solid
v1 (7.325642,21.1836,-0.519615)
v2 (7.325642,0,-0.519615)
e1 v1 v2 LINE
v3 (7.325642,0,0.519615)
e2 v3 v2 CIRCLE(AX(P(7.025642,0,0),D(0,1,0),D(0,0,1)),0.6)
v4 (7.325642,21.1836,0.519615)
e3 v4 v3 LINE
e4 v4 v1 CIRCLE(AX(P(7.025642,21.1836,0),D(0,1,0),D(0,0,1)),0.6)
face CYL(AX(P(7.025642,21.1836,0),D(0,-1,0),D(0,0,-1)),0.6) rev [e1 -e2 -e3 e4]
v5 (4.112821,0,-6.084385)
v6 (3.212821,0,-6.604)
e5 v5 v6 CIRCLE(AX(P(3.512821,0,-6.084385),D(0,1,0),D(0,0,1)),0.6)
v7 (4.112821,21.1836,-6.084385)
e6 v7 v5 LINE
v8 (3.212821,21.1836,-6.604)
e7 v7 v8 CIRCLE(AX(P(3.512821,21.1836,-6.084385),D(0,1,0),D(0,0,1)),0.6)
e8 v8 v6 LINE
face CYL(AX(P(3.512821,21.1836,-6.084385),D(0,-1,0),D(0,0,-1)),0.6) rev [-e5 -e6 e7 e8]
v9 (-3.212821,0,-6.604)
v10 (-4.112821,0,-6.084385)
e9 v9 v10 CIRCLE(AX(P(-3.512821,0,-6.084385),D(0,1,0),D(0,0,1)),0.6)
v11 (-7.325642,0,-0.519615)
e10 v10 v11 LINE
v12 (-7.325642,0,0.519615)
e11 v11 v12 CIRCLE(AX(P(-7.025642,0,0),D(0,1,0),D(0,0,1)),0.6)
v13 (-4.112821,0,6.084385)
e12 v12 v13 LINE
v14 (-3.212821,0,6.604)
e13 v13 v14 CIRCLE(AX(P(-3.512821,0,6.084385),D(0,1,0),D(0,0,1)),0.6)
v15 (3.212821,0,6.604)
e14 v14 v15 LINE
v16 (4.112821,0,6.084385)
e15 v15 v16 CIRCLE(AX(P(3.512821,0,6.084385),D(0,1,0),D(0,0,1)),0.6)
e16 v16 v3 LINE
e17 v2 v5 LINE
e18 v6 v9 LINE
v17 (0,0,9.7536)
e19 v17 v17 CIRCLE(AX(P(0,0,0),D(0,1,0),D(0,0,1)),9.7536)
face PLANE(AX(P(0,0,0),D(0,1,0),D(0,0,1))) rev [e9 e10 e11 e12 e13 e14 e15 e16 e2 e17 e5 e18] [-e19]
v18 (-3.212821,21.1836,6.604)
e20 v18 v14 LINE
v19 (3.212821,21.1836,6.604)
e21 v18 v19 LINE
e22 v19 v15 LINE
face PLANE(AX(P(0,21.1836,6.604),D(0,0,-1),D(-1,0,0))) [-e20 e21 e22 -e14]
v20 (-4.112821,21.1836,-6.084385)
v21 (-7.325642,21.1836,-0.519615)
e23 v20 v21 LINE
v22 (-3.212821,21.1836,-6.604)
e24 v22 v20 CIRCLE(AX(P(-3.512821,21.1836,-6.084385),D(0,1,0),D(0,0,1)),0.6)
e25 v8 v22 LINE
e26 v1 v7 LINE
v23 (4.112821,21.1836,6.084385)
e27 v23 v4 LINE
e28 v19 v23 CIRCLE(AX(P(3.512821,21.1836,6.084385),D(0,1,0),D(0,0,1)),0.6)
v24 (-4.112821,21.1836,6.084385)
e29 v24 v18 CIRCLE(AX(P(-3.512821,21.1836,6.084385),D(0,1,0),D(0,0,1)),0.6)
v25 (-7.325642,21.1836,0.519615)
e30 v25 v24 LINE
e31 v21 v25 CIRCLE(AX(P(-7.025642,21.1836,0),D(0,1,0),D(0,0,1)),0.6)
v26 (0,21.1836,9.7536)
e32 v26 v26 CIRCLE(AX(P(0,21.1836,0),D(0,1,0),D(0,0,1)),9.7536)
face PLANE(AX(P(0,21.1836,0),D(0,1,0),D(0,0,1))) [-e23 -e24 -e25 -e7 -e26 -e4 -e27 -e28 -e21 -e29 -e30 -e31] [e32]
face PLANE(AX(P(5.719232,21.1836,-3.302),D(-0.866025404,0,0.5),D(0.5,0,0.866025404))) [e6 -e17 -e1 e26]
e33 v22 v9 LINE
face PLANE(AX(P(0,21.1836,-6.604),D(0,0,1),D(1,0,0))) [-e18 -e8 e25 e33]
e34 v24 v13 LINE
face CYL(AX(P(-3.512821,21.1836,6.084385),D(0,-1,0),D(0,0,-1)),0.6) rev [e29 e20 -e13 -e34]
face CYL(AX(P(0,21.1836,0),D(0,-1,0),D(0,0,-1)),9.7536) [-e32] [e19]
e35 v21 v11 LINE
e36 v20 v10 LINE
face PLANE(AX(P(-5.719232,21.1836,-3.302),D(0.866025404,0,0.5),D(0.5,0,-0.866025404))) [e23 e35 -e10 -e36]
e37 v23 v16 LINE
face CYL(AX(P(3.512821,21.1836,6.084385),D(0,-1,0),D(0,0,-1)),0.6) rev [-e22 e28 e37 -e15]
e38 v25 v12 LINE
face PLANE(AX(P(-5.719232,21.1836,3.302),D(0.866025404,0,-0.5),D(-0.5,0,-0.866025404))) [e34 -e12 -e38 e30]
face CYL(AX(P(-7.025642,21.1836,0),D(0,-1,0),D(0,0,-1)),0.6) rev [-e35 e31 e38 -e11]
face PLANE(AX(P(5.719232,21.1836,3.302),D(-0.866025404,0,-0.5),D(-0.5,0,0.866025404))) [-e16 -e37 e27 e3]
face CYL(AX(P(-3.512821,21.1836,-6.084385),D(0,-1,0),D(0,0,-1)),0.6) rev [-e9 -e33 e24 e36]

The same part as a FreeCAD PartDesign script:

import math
import FreeCAD as App
import Part
import Sketcher
from FreeCAD import Vector
Q = App.Units.Quantity

doc = App.newDocument("Part")
body = doc.addObject("PartDesign::Body", "Body")

sketch1 = body.newObject("Sketcher::SketchObject", "Sketch")
sketch1.AttachmentSupport = (doc.getObject("XZ_Plane"), [""])
sketch1.MapMode = "FlatFace"
sketch1.addGeometry(Part.Circle(Vector(0, 0, 0), Vector(0, 0, 1), 9.8), False)
sketch1.addGeometry(Part.ArcOfCircle(Part.Circle(Vector(3.5, -6.1, 0), Vector(0, 0, 1), 0.6), math.radians(-120), math.radians(-60)), False)
sketch1.addGeometry(Part.ArcOfCircle(Part.Circle(Vector(3.5, -6.1, 0), Vector(0, 0, 1), 0.6), math.radians(-60), math.radians(0)), False)
sketch1.addGeometry(Part.LineSegment(Vector(4.1, -6.1, 0), Vector(7.3, -0.5, 0)), False)
sketch1.addGeometry(Part.ArcOfCircle(Part.Circle(Vector(7, 0, 0), Vector(0, 0, 1), 0.6), math.radians(-60), math.radians(0)), False)
sketch1.addGeometry(Part.ArcOfCircle(Part.Circle(Vector(7, 0, 0), Vector(0, 0, 1), 0.6), math.radians(0), math.radians(60)), False)
sketch1.addGeometry(Part.LineSegment(Vector(7.3, 0.5, 0), Vector(4.1, 6.1, 0)), False)
sketch1.addGeometry(Part.ArcOfCircle(Part.Circle(Vector(3.5, 6.1, 0), Vector(0, 0, 1), 0.6), math.radians(0), math.radians(60)), False)
sketch1.addGeometry(Part.ArcOfCircle(Part.Circle(Vector(3.5, 6.1, 0), Vector(0, 0, 1), 0.6), math.radians(60), math.radians(120)), False)
sketch1.addGeometry(Part.LineSegment(Vector(3.2, 6.6, 0), Vector(-3.2, 6.6, 0)), False)
sketch1.addGeometry(Part.ArcOfCircle(Part.Circle(Vector(-3.5, 6.1, 0), Vector(0, 0, 1), 0.6), math.radians(60), math.radians(120)), False)
sketch1.addGeometry(Part.ArcOfCircle(Part.Circle(Vector(-3.5, 6.1, 0), Vector(0, 0, 1), 0.6), math.radians(120), math.radians(180)), False)
sketch1.addGeometry(Part.LineSegment(Vector(-4.1, 6.1, 0), Vector(-7.3, 0.5, 0)), False)
sketch1.addGeometry(Part.ArcOfCircle(Part.Circle(Vector(-7, 0, 0), Vector(0, 0, 1), 0.6), math.radians(120), math.radians(180)), False)
sketch1.addGeometry(Part.ArcOfCircle(Part.Circle(Vector(-7, 0, 0), Vector(0, 0, 1), 0.6), math.radians(180), math.radians(240)), False)
sketch1.addGeometry(Part.LineSegment(Vector(-7.3, -0.5, 0), Vector(-4.1, -6.1, 0)), False)
sketch1.addGeometry(Part.ArcOfCircle(Part.Circle(Vector(-3.5, -6.1, 0), Vector(0, 0, 1), 0.6), math.radians(-180), math.radians(-120)), False)
sketch1.addGeometry(Part.ArcOfCircle(Part.Circle(Vector(-3.5, -6.1, 0), Vector(0, 0, 1), 0.6), math.radians(-120), math.radians(-60)), False)
sketch1.addGeometry(Part.LineSegment(Vector(-3.2, -6.6, 0), Vector(3.2, -6.6, 0)), False)
sketch1.addConstraint(Sketcher.Constraint("Tangent", 1, 2, 2, 1))
sketch1.addConstraint(Sketcher.Constraint("Coincident", 2, 2, 3, 1))
sketch1.addConstraint(Sketcher.Constraint("Coincident", 3, 2, 4, 1))
sketch1.addConstraint(Sketcher.Constraint("Tangent", 4, 2, 5, 1))
sketch1.addConstraint(Sketcher.Constraint("Coincident", 5, 2, 6, 1))
sketch1.addConstraint(Sketcher.Constraint("Coincident", 6, 2, 7, 1))
sketch1.addConstraint(Sketcher.Constraint("Tangent", 7, 2, 8, 1))
sketch1.addConstraint(Sketcher.Constraint("Coincident", 8, 2, 9, 1))
sketch1.addConstraint(Sketcher.Constraint("Coincident", 9, 2, 10, 1))
sketch1.addConstraint(Sketcher.Constraint("Tangent", 10, 2, 11, 1))
sketch1.addConstraint(Sketcher.Constraint("Coincident", 11, 2, 12, 1))
sketch1.addConstraint(Sketcher.Constraint("Coincident", 12, 2, 13, 1))
sketch1.addConstraint(Sketcher.Constraint("Tangent", 13, 2, 14, 1))
sketch1.addConstraint(Sketcher.Constraint("Coincident", 14, 2, 15, 1))
sketch1.addConstraint(Sketcher.Constraint("Coincident", 15, 2, 16, 1))
sketch1.addConstraint(Sketcher.Constraint("Tangent", 16, 2, 17, 1))
sketch1.addConstraint(Sketcher.Constraint("Coincident", 17, 2, 18, 1))
sketch1.addConstraint(Sketcher.Constraint("Coincident", 18, 2, 1, 1))
sketch1.addConstraint(Sketcher.Constraint("Horizontal", 9))
sketch1.addConstraint(Sketcher.Constraint("Horizontal", 18))
sketch1.addConstraint(Sketcher.Constraint("Coincident", 0, 3, -1, 1))
sketch1.addConstraint(Sketcher.Constraint("Equal", 1, 2))
sketch1.addConstraint(Sketcher.Constraint("Equal", 2, 4))
sketch1.addConstraint(Sketcher.Constraint("Equal", 4, 5))
sketch1.addConstraint(Sketcher.Constraint("Equal", 5, 7))
sketch1.addConstraint(Sketcher.Constraint("Equal", 7, 8))
sketch1.addConstraint(Sketcher.Constraint("Equal", 8, 10))
sketch1.addConstraint(Sketcher.Constraint("Equal", 10, 11))
sketch1.addConstraint(Sketcher.Constraint("Equal", 11, 13))
sketch1.addConstraint(Sketcher.Constraint("Equal", 13, 14))
sketch1.addConstraint(Sketcher.Constraint("Equal", 14, 16))
sketch1.addConstraint(Sketcher.Constraint("Equal", 16, 17))
sketch1.addConstraint(Sketcher.Constraint("Symmetric", 1, 3, 10, 3, -1, 1))
sketch1.addConstraint(Sketcher.Constraint("Symmetric", 4, 3, 13, 3, -1, 1))
sketch1.addConstraint(Sketcher.Constraint("Symmetric", 7, 3, 16, 3, -1, 1))
sketch1.addConstraint(Sketcher.Constraint("Symmetric", 7, 3, 10, 3, -2))
sketch1.addConstraint(Sketcher.Constraint("Symmetric", 5, 2, 12, 2, -2))
sketch1.addConstraint(Sketcher.Constraint("PointOnObject", 4, 2, -1))
sketch1.addConstraint(Sketcher.Constraint("PointOnObject", 13, 2, -1))
sketch1.addConstraint(Sketcher.Constraint("Parallel", 3, 12))
sketch1.addConstraint(Sketcher.Constraint("Parallel", 6, 15))
sketch1.addConstraint(Sketcher.Constraint("Horizontal", 17, 3, 2, 2))
sketch1.addConstraint(Sketcher.Constraint("Horizontal", 11, 3, 6, 2))
sketch1.addConstraint(Sketcher.Constraint("Horizontal", 7, 2, 8, 2))
sketch1.addConstraint(Sketcher.Constraint("Horizontal", 9, 2, 10, 2))
sketch1.addConstraint(Sketcher.Constraint("Horizontal", 6, 2, 11, 2))
sketch1.addConstraint(Sketcher.Constraint("Horizontal", 3, 2, 14, 2))
sketch1.addConstraint(Sketcher.Constraint("Horizontal", 1, 2, 16, 2))
sketch1.addConstraint(Sketcher.Constraint("Horizontal", 16, 2, 17, 2))
sketch1.addConstraint(Sketcher.Constraint("Vertical", 1, 2, 7, 2))
sketch1.addConstraint(Sketcher.Constraint("Diameter", 0, Q("0.768 in")))
sketch1.addConstraint(Sketcher.Constraint("Angle", 3, Q("60 deg")))
sketch1.addConstraint(Sketcher.Constraint("DistanceY", 1, 2, -1, 1, Q("0.26 in")))
sketch1.addConstraint(Sketcher.Constraint("Radius", 1, Q("0.6 mm")))
sketch1.addConstraint(Sketcher.Constraint("DistanceX", -1, 1, 1, 3, Q("0.1383 in")))
sketch1.addConstraint(Sketcher.Constraint("DistanceX", -1, 1, 4, 3, Q("0.2766001 in")))
sketch1.addConstraint(Sketcher.Constraint("DistanceX", 7, 2, 5, 2, Q("0.1383 in")))
pad1 = body.newObject("PartDesign::Pad", "Pad")
pad1.Profile = sketch1
pad1.Length = Q("0.834 in")
pad1.Reversed = True

doc.recompute()
